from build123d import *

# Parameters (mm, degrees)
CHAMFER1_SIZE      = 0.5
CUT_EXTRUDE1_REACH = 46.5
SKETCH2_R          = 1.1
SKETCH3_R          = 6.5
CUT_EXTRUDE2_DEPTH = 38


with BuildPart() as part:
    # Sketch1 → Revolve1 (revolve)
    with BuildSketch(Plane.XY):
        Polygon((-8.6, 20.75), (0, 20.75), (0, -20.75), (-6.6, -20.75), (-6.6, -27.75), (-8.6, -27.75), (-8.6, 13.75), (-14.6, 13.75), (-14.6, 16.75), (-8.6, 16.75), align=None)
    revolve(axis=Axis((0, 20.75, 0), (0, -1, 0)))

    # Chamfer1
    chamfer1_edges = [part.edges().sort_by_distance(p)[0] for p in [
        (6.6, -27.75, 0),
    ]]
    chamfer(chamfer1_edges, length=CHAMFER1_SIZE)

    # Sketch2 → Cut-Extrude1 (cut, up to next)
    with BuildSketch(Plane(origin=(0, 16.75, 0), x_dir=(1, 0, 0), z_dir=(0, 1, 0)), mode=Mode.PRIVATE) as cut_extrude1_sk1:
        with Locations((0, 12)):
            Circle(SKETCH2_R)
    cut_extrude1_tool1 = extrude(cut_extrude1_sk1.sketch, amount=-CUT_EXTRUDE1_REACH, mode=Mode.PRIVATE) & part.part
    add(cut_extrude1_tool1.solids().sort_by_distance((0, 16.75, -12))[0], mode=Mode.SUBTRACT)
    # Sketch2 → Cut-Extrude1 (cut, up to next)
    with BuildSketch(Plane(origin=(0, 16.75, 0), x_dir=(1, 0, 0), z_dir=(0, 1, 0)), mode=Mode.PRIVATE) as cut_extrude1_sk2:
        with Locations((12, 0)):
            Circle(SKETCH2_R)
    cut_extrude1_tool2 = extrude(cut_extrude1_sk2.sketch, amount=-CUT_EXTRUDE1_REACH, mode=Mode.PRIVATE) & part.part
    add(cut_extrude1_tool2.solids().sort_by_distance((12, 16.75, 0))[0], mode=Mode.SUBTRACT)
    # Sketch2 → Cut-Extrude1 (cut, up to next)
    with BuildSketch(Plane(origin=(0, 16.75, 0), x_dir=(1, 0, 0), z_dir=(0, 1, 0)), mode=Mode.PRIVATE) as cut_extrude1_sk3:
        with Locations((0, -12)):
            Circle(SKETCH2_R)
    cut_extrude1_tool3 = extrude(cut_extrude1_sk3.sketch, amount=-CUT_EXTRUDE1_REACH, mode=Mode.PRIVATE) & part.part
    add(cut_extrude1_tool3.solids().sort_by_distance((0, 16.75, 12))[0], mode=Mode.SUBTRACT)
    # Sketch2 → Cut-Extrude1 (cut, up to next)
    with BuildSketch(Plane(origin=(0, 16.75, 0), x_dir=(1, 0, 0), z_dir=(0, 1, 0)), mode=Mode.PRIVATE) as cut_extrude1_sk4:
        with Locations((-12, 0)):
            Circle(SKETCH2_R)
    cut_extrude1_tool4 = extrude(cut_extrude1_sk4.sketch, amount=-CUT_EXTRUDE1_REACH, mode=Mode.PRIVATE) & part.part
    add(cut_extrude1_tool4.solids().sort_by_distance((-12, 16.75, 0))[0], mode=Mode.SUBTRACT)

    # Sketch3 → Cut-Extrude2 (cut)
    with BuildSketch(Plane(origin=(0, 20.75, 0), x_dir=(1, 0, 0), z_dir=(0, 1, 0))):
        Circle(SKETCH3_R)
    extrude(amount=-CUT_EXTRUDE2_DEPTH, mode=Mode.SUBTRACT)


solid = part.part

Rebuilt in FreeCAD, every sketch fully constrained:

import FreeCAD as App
import Part
import Sketcher
Q = App.Units.Quantity


def edges_at(feature, points):
    """Names of the edges that pass closest to the given points."""
    edges = feature.Shape.Edges
    near = lambda p: min(range(len(edges)), key=lambda i: edges[i].distToShape(Part.Vertex(*p))[0])
    return sorted({f"Edge{near(p) + 1}" for p in points})

doc = App.newDocument("Part")
params = doc.addObject("Spreadsheet::Sheet", "Params")
for row, (alias, value) in enumerate([
    ("sketch1_width", "6 mm"),
    ("sketch1_width2", "2 mm"),
    ("sketch1_height", "4 mm"),
    ("sketch1_height2", "3 mm"),
    ("sketch1_width3", "8.6 mm"),
    ("revolution_angle", "360 deg"),
    ("chamfer_size", "0.5 mm"),
    ("sketch2_diameter", "2.2 mm"),
    ("sketch3_diameter", "2.2 mm"),
    ("sketch4_diameter", "2.2 mm"),
    ("sketch5_diameter", "2.2 mm"),
    ("sketch6_diameter", "13 mm"),
    ("pocket5_length", "38 mm"),
], start=1):
    params.set(f"A{row}", alias)
    params.set(f"B{row}", "=" + value)
    params.setAlias(f"B{row}", alias)

body = doc.addObject("PartDesign::Body", "Body")

sketch1 = doc.addObject("Sketcher::SketchObject", "Sketch")
body.addObject(sketch1)
sketch1.AttachmentSupport = (doc.XY_Plane, [""])
sketch1.MapMode = "FlatFace"
sketch1.addGeometry([
    Part.LineSegment(App.Vector(0, 20.8, 0), App.Vector(-8.6, 20.8, 0)),
    Part.LineSegment(App.Vector(-8.6, 20.8, 0), App.Vector(-8.6, 16.8, 0)),
    Part.LineSegment(App.Vector(-8.6, 16.8, 0), App.Vector(-14.6, 16.8, 0)),
    Part.LineSegment(App.Vector(-14.6, 16.8, 0), App.Vector(-14.6, 13.8, 0)),
    Part.LineSegment(App.Vector(-14.6, 13.8, 0), App.Vector(-8.6, 13.8, 0)),
    Part.LineSegment(App.Vector(-8.6, 13.8, 0), App.Vector(-8.6, -27.8, 0)),
    Part.LineSegment(App.Vector(-8.6, -27.8, 0), App.Vector(-6.6, -27.8, 0)),
    Part.LineSegment(App.Vector(-6.6, -27.8, 0), App.Vector(-6.6, -20.8, 0)),
    Part.LineSegment(App.Vector(-6.6, -20.8, 0), App.Vector(0, -20.8, 0)),
    Part.LineSegment(App.Vector(0, -20.8, 0), App.Vector(0, 20.8, 0)),
], False)
sketch1.addConstraint([
    Sketcher.Constraint("Coincident", 0, 2, 1, 1),
    Sketcher.Constraint("Coincident", 1, 2, 2, 1),
    Sketcher.Constraint("Coincident", 2, 2, 3, 1),
    Sketcher.Constraint("Coincident", 3, 2, 4, 1),
    Sketcher.Constraint("Coincident", 4, 2, 5, 1),
    Sketcher.Constraint("Coincident", 5, 2, 6, 1),
    Sketcher.Constraint("Coincident", 6, 2, 7, 1),
    Sketcher.Constraint("Coincident", 7, 2, 8, 1),
    Sketcher.Constraint("Coincident", 8, 2, 9, 1),
    Sketcher.Constraint("Coincident", 9, 2, 0, 1),
    Sketcher.Constraint("Horizontal", 0),
    Sketcher.Constraint("Vertical", 1),
    Sketcher.Constraint("Horizontal", 2),
    Sketcher.Constraint("Vertical", 3),
    Sketcher.Constraint("Horizontal", 4),
    Sketcher.Constraint("Vertical", 5),
    Sketcher.Constraint("Horizontal", 6),
    Sketcher.Constraint("Vertical", 7),
    Sketcher.Constraint("Horizontal", 8),
    Sketcher.Constraint("Vertical", 9),
    Sketcher.Constraint("Symmetric", 8, 2, 9, 2, -1, 1),
    Sketcher.Constraint("Vertical", 1, 2, 4, 2),
    Sketcher.Constraint("Equal", 5, 9),
    Sketcher.Constraint("DistanceX", 2, 2, 2, 1, Q("6 mm")),
    Sketcher.Constraint("DistanceX", 6, 1, 6, 2, Q("2 mm")),
    Sketcher.Constraint("DistanceY", 1, 2, 1, 1, Q("4 mm")),
    Sketcher.Constraint("DistanceY", 3, 2, 3, 1, Q("3 mm")),
    Sketcher.Constraint("DistanceX", 0, 2, 0, 1, Q("8.6 mm")),
    Sketcher.Constraint("DistanceY", 5, 2, 5, 1, Q("41.5 mm")),
])
sketch1.setExpression("Constraints[23]", "Params.sketch1_width")
sketch1.setExpression("Constraints[24]", "Params.sketch1_width2")
sketch1.setExpression("Constraints[25]", "Params.sketch1_height")
sketch1.setExpression("Constraints[26]", "Params.sketch1_height2")
sketch1.setExpression("Constraints[27]", "Params.sketch1_width3")
revolution = doc.addObject("PartDesign::Revolution", "Revolution")
body.addObject(revolution)
revolution.Profile = sketch1
revolution.ReferenceAxis = (sketch1, ["V_Axis"])
revolution.setExpression("Angle", "Params.revolution_angle")
doc.recompute()

chamfer = doc.addObject("PartDesign::Chamfer", "Chamfer")
body.addObject(chamfer)
chamfer.Base = (revolution, edges_at(revolution, [(6.6, -27.75, 0)]))
chamfer.setExpression("Size", "Params.chamfer_size")

sketch2 = doc.addObject("Sketcher::SketchObject", "Sketch001")
body.addObject(sketch2)
sketch2.AttachmentSupport = (doc.XZ_Plane, [""])
sketch2.MapMode = "FlatFace"
sketch2.AttachmentOffset = App.Placement(App.Vector(0, 0, -16.75), App.Rotation())
sketch2.addGeometry(Part.Circle(App.Vector(0, -12, 0), App.Vector(0, 0, 1), 1.1), False)
sketch2.addConstraint([
    Sketcher.Constraint("PointOnObject", 0, 3, -2),
    Sketcher.Constraint("Diameter", 0, Q("2.2 mm")),
    Sketcher.Constraint("DistanceY", 0, 3, -1, 1, Q("12 mm")),
])
sketch2.setExpression("Constraints[1]", "Params.sketch2_diameter")
pocket1 = doc.addObject("PartDesign::Pocket", "Pocket")
body.addObject(pocket1)
pocket1.Profile = sketch2
pocket1.Type = "UpToFirst"
pocket1.Reversed = True

sketch3 = doc.addObject("Sketcher::SketchObject", "Sketch002")
body.addObject(sketch3)
sketch3.AttachmentSupport = (doc.XZ_Plane, [""])
sketch3.MapMode = "FlatFace"
sketch3.AttachmentOffset = App.Placement(App.Vector(0, 0, -16.75), App.Rotation())
sketch3.addGeometry(Part.Circle(App.Vector(12, 0, 0), App.Vector(0, 0, 1), 1.1), False)
sketch3.addConstraint([
    Sketcher.Constraint("PointOnObject", 0, 3, -1),
    Sketcher.Constraint("Diameter", 0, Q("2.2 mm")),
    Sketcher.Constraint("DistanceX", -1, 1, 0, 3, Q("12 mm")),
])
sketch3.setExpression("Constraints[1]", "Params.sketch3_diameter")
pocket2 = doc.addObject("PartDesign::Pocket", "Pocket001")
body.addObject(pocket2)
pocket2.Profile = sketch3
pocket2.Type = "UpToFirst"
pocket2.Reversed = True

sketch4 = doc.addObject("Sketcher::SketchObject", "Sketch003")
body.addObject(sketch4)
sketch4.AttachmentSupport = (doc.XZ_Plane, [""])
sketch4.MapMode = "FlatFace"
sketch4.AttachmentOffset = App.Placement(App.Vector(0, 0, -16.75), App.Rotation())
sketch4.addGeometry(Part.Circle(App.Vector(0, 12, 0), App.Vector(0, 0, 1), 1.1), False)
sketch4.addConstraint([
    Sketcher.Constraint("PointOnObject", 0, 3, -2),
    Sketcher.Constraint("Diameter", 0, Q("2.2 mm")),
    Sketcher.Constraint("DistanceY", -1, 1, 0, 3, Q("12 mm")),
])
sketch4.setExpression("Constraints[1]", "Params.sketch4_diameter")
pocket3 = doc.addObject("PartDesign::Pocket", "Pocket002")
body.addObject(pocket3)
pocket3.Profile = sketch4
pocket3.Type = "UpToFirst"
pocket3.Reversed = True

sketch5 = doc.addObject("Sketcher::SketchObject", "Sketch004")
body.addObject(sketch5)
sketch5.AttachmentSupport = (doc.XZ_Plane, [""])
sketch5.MapMode = "FlatFace"
sketch5.AttachmentOffset = App.Placement(App.Vector(0, 0, -16.75), App.Rotation())
sketch5.addGeometry(Part.Circle(App.Vector(-12, 0, 0), App.Vector(0, 0, 1), 1.1), False)
sketch5.addConstraint([
    Sketcher.Constraint("PointOnObject", 0, 3, -1),
    Sketcher.Constraint("Diameter", 0, Q("2.2 mm")),
    Sketcher.Constraint("DistanceX", 0, 3, -1, 1, Q("12 mm")),
])
sketch5.setExpression("Constraints[1]", "Params.sketch5_diameter")
pocket4 = doc.addObject("PartDesign::Pocket", "Pocket003")
body.addObject(pocket4)
pocket4.Profile = sketch5
pocket4.Type = "UpToFirst"
pocket4.Reversed = True

sketch6 = doc.addObject("Sketcher::SketchObject", "Sketch005")
body.addObject(sketch6)
sketch6.AttachmentSupport = (doc.XZ_Plane, [""])
sketch6.MapMode = "FlatFace"
sketch6.AttachmentOffset = App.Placement(App.Vector(0, 0, -20.75), App.Rotation())
sketch6.addGeometry(Part.Circle(App.Vector(0, 0, 0), App.Vector(0, 0, 1), 6), False)
sketch6.addConstraint([
    Sketcher.Constraint("Coincident", 0, 3, -1, 1),
    Sketcher.Constraint("Diameter", 0, Q("13 mm")),
])
sketch6.setExpression("Constraints[1]", "Params.sketch6_diameter")
pocket5 = doc.addObject("PartDesign::Pocket", "Pocket004")
body.addObject(pocket5)
pocket5.Profile = sketch6
pocket5.setExpression("Length", "Params.pocket5_length")
pocket5.Reversed = True

doc.recompute()
